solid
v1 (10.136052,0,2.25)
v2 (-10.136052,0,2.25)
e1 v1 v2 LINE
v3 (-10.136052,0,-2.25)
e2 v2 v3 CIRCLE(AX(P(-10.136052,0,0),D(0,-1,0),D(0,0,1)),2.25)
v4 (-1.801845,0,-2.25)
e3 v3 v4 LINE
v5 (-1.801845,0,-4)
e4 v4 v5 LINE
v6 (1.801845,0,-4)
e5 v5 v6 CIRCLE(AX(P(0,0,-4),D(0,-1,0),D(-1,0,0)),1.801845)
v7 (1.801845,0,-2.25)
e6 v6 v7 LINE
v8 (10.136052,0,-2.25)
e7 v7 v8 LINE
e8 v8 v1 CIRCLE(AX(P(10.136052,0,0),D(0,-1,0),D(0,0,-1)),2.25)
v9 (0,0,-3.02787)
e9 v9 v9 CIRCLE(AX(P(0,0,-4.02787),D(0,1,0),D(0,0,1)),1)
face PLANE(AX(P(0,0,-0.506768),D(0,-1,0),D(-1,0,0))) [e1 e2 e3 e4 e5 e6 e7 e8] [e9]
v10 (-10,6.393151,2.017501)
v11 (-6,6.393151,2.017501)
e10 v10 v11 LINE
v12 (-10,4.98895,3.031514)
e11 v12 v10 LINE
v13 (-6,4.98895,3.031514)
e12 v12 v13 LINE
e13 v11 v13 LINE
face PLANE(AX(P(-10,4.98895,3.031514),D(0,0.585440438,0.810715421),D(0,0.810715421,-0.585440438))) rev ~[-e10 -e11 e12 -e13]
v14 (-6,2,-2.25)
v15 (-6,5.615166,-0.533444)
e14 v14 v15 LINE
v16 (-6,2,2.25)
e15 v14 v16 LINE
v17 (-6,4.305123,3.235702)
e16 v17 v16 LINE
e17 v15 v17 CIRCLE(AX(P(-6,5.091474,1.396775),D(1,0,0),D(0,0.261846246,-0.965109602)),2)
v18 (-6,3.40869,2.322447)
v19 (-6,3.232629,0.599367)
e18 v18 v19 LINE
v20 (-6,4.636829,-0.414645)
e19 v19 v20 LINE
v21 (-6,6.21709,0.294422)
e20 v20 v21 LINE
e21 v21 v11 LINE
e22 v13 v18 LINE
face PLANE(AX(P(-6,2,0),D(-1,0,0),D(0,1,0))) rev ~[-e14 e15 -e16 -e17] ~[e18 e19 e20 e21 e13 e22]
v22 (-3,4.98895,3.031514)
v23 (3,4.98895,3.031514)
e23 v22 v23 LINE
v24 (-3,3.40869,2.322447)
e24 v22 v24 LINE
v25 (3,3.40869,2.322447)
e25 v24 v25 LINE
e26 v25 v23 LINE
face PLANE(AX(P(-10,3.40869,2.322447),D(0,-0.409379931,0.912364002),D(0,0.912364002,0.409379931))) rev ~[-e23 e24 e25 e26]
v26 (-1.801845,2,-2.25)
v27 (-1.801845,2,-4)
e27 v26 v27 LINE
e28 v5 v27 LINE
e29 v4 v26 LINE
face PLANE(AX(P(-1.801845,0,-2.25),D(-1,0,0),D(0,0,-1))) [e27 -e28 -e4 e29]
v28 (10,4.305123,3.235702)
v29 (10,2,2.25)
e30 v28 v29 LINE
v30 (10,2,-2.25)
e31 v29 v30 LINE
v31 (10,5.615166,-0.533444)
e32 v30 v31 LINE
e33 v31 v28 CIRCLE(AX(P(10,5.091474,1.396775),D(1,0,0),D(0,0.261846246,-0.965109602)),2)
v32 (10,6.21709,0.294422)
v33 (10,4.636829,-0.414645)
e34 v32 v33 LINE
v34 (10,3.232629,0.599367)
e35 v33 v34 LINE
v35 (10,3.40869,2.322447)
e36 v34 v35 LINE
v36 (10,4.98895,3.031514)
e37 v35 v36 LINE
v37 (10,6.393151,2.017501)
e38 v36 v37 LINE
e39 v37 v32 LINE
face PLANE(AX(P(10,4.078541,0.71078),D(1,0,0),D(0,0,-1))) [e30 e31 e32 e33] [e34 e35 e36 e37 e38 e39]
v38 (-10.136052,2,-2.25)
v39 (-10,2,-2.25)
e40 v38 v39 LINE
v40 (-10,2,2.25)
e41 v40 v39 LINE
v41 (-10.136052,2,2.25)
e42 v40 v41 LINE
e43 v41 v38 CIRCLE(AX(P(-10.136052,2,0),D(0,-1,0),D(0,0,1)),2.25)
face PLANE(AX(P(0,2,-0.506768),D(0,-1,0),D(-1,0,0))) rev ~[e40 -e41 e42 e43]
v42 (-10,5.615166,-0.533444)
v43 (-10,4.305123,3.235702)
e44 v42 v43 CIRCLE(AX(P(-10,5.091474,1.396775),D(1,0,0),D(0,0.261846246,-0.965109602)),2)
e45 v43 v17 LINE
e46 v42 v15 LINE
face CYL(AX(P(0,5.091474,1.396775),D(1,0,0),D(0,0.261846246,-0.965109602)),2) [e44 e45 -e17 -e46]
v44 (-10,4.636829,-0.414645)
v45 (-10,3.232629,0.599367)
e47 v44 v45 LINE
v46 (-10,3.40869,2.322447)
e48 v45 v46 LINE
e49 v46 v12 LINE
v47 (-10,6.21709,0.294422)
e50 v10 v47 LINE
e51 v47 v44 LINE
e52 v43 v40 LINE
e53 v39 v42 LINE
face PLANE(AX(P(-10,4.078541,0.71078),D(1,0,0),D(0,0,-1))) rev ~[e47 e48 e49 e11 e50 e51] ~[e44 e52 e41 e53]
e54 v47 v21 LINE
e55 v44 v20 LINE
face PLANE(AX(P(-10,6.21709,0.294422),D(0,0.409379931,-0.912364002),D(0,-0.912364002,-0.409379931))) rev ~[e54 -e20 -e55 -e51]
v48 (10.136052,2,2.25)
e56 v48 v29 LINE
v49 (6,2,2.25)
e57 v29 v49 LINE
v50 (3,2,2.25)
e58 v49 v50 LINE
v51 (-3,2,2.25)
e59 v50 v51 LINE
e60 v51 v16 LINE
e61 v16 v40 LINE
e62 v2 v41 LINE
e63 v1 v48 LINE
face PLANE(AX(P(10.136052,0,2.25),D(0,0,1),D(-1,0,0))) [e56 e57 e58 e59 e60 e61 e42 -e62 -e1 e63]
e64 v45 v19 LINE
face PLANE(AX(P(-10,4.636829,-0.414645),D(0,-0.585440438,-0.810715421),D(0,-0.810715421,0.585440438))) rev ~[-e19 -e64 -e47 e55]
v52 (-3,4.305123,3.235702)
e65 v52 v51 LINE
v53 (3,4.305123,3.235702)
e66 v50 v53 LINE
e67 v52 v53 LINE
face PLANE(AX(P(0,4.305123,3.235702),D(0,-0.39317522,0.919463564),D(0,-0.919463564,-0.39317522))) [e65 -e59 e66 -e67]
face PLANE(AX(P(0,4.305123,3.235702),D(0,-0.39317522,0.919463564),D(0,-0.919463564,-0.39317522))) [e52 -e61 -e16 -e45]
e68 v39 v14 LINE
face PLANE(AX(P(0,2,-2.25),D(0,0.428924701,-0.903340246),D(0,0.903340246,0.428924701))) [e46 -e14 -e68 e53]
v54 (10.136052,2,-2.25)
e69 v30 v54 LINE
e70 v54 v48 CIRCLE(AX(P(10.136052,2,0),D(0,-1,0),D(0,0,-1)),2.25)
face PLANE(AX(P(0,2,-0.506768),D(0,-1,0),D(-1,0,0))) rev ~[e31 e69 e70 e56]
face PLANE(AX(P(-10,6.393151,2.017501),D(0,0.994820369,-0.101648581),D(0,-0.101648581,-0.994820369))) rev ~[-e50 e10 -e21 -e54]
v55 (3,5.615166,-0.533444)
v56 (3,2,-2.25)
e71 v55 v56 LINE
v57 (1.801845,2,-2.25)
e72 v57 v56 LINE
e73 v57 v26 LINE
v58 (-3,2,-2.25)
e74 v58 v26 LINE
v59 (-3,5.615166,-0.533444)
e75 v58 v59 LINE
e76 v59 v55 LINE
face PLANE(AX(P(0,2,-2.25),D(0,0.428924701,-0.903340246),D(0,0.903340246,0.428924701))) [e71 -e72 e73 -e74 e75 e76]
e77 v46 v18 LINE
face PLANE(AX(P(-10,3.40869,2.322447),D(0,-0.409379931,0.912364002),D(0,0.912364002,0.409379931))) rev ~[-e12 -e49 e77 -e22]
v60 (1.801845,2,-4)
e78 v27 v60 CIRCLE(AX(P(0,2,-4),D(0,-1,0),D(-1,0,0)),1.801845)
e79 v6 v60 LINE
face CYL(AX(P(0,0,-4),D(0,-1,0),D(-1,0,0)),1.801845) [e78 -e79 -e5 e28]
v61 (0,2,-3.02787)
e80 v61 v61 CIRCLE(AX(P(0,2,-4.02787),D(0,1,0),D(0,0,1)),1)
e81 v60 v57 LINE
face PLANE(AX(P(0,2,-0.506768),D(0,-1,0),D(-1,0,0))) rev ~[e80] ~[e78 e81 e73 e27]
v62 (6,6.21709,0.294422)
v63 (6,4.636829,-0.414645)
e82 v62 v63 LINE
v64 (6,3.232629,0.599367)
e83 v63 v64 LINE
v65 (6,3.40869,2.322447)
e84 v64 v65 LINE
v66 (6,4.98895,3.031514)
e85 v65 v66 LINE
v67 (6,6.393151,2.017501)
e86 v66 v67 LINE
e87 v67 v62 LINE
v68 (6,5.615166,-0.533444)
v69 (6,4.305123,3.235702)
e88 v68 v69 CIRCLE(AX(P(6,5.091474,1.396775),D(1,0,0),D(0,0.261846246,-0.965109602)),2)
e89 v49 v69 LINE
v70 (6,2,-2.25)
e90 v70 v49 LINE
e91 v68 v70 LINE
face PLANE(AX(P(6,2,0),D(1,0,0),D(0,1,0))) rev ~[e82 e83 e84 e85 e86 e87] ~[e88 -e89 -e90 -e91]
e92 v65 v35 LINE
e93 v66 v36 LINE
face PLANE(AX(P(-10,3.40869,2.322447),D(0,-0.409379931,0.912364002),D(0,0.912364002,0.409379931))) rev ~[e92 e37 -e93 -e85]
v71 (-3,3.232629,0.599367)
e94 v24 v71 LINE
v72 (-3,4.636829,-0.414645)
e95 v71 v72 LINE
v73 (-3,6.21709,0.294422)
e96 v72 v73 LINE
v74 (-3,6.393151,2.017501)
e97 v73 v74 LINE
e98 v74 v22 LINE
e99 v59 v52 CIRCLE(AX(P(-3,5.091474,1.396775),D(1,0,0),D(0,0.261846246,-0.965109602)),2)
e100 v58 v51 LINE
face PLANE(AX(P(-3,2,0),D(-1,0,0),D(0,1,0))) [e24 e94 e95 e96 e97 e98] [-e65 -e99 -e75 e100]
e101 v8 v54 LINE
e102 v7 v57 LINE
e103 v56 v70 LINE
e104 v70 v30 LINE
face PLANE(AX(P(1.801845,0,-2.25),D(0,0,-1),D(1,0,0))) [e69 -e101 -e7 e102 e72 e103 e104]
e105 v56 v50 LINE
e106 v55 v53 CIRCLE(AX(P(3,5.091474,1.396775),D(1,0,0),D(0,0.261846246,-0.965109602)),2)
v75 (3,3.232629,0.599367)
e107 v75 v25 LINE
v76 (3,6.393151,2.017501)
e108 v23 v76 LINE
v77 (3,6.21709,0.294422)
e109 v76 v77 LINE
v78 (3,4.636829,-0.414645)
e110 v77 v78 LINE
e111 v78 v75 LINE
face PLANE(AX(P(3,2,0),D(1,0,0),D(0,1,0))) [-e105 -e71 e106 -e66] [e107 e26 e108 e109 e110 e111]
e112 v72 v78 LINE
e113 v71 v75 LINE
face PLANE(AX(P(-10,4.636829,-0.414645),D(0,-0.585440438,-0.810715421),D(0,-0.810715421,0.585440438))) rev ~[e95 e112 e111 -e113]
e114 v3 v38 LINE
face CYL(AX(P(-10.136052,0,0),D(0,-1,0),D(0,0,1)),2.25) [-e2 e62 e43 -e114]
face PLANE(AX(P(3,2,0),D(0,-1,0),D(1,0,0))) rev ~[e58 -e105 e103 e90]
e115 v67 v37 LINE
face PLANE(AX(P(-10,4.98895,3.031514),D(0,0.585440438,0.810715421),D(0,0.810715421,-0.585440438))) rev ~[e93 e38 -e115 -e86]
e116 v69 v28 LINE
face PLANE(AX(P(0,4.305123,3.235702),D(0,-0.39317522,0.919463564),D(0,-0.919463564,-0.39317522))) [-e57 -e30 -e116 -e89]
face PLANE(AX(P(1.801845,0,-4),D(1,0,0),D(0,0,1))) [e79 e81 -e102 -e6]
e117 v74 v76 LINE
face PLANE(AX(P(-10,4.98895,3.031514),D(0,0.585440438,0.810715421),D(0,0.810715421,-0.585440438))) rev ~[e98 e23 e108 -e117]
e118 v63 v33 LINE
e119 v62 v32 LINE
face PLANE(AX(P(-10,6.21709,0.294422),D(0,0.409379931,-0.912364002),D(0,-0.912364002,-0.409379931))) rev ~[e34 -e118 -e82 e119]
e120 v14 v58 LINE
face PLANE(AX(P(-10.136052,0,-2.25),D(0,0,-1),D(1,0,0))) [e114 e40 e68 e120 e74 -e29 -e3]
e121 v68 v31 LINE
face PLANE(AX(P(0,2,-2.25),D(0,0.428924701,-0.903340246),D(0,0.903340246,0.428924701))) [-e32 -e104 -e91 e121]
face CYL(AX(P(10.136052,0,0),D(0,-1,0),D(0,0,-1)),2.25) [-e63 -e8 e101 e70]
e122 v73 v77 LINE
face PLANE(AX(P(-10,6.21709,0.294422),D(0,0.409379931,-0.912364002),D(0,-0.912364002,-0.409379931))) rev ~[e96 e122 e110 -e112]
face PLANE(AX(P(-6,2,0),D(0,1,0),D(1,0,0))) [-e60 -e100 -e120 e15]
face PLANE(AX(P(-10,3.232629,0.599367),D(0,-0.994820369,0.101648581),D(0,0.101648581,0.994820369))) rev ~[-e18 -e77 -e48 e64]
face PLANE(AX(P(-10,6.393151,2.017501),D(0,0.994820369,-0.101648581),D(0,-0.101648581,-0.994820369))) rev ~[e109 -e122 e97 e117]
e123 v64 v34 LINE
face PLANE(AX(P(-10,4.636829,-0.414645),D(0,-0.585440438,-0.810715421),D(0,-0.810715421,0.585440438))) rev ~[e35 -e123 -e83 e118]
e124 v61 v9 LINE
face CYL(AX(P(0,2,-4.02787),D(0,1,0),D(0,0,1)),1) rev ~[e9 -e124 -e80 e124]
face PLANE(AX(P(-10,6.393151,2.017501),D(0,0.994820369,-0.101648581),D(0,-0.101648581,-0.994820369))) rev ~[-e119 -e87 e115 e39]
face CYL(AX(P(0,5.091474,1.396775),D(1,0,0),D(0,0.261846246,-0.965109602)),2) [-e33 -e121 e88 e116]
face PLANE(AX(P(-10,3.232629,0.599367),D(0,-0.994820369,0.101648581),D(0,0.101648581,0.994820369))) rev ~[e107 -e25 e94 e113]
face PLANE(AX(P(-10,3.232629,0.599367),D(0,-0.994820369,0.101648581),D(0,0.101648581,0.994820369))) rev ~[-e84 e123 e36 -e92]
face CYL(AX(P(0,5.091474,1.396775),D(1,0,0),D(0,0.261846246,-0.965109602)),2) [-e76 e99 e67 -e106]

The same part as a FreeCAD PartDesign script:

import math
import FreeCAD as App
import Part
import Sketcher

V = App.Vector


def add_polygon(sketch, points):
    """Adds a closed chain of lines whose ends are joined by coincident constraints."""
    first, n = sketch.GeometryCount, len(points)
    for a, b in zip(points, points[1:] + points[:1]):
        sketch.addGeometry(Part.LineSegment(App.Vector(*a, 0), App.Vector(*b, 0)), False)
    for i in range(n):
        sketch.addConstraint(Sketcher.Constraint("Coincident", first + i, 2, first + (i + 1) % n, 1))

doc = App.newDocument("Part")
body = doc.addObject("PartDesign::Body", "Body")

# Sketch on XZ plane
sketch1 = body.newObject("Sketcher::SketchObject", "Sketch")
sketch1.AttachmentSupport = (doc.getObject("XZ_Plane"), [""])
sketch1.MapMode = "FlatFace"
sketch1.addGeometry([
    Part.LineSegment(V(-1.8, -2.2, 0), V(-10.1, -2.2, 0)),  # 0
    Part.ArcOfCircle(Part.Circle(V(-10.1, 0, 0), V(0, 0, 1), 2.2), math.radians(90), math.radians(270)),  # 1
    Part.LineSegment(V(-10.1, 2.2, 0), V(10.1, 2.2, 0)),  # 2
    Part.ArcOfCircle(Part.Circle(V(10.1, 0, 0), V(0, 0, 1), 2.2), math.radians(-90), math.radians(90)),  # 3
    Part.LineSegment(V(10.1, -2.2, 0), V(1.8, -2.2, 0)),  # 4
    Part.LineSegment(V(1.8, -2.2, 0), V(1.8, -4, 0)),  # 5
    Part.ArcOfCircle(Part.Circle(V(0, -4, 0), V(0, 0, 1), 1.8), math.radians(180), math.radians(360)),  # 6
    Part.LineSegment(V(-1.8, -4, 0), V(-1.8, -2.2, 0)),  # 7
], False)
sketch1.addConstraint([
    Sketcher.Constraint("Tangent", 0, 2, 1, 2),
    Sketcher.Constraint("Tangent", 1, 1, 2, 1),
    Sketcher.Constraint("Tangent", 2, 2, 3, 2),
    Sketcher.Constraint("Tangent", 3, 1, 4, 1),
    Sketcher.Constraint("Coincident", 4, 2, 5, 1),
    Sketcher.Constraint("Tangent", 5, 2, 6, 2),
    Sketcher.Constraint("Tangent", 6, 1, 7, 1),
    Sketcher.Constraint("Coincident", 7, 2, 0, 1),
    Sketcher.Constraint("Horizontal", 0),
    Sketcher.Constraint("Horizontal", 2),
    Sketcher.Constraint("Horizontal", 4),
    Sketcher.Constraint("Vertical", 5),
    Sketcher.Constraint("Vertical", 7),
    Sketcher.Constraint("Equal", 1, 3),
    Sketcher.Constraint("Symmetric", 1, 3, 3, 3, -1, 1),
    Sketcher.Constraint("PointOnObject", 6, 3, -2),
    Sketcher.Constraint("Radius", 1, 2.25),
    Sketcher.Constraint("DistanceY", 6, 3, -1, 1, 4.0),
    Sketcher.Constraint("Radius", 6, 1.801845),
    Sketcher.Constraint("DistanceX", 0, 2, 0, 1, 8.334207),
])
pad1 = body.newObject("PartDesign::Pad", "Pad")
pad1.Profile = sketch1
pad1.Length = 2
pad1.Reversed = True

# Sketch on XZ plane
sketch2 = body.newObject("Sketcher::SketchObject", "Sketch001")
sketch2.AttachmentSupport = (doc.getObject("XZ_Plane"), [""])
sketch2.MapMode = "FlatFace"
sketch2.AttachmentOffset = App.Placement(V(0, 0, -2), App.Rotation())
sketch2.addGeometry(Part.Circle(V(0, -4, 0), V(0, 0, 1), 1), False)
sketch2.addConstraint([
    Sketcher.Constraint("PointOnObject", 0, 3, -2),
    Sketcher.Constraint("Diameter", 0, 2.0),
    Sketcher.Constraint("DistanceY", 0, 3, -1, 1, 4.02787),
])
pocket1 = body.newObject("PartDesign::Pocket", "Pocket")
pocket1.Profile = sketch2
pocket1.Length = 2
pocket1.Reversed = True

# Sketch on YZ plane
sketch3 = body.newObject("Sketcher::SketchObject", "Sketch002")
sketch3.AttachmentSupport = (doc.getObject("YZ_Plane"), [""])
sketch3.MapMode = "FlatFace"
sketch3.addGeometry([
    Part.LineSegment(V(2, -2.2, 0), V(5.6, -0.5, 0)),
    Part.ArcOfCircle(Part.Circle(V(5.1, 1.4, 0), V(0, 0, 1), 2), math.radians(-75), math.radians(113)),
    Part.LineSegment(V(4.3, 3.2, 0), V(2, 2.2, 0)),
    Part.LineSegment(V(2, 2.2, 0), V(2, -2.2, 0)),
], False)
sketch3.addConstraint([
    Sketcher.Constraint("Coincident", 0, 2, 1, 1),
    Sketcher.Constraint("Tangent", 1, 2, 2, 1),
    Sketcher.Constraint("Coincident", 2, 2, 3, 1),
    Sketcher.Constraint("Coincident", 3, 2, 0, 1),
    Sketcher.Constraint("Vertical", 3),
    Sketcher.Constraint("Radius", 1, 2.0),
    Sketcher.Constraint("DistanceY", 3, 2, 3, 1, 4.5),
    Sketcher.Constraint("DistanceX", -1, 1, 2, 2, 2.0),
    Sketcher.Constraint("DistanceY", -1, 1, 2, 2, 2.25),
    Sketcher.Constraint("Distance", 0, 4.001999),
    Sketcher.Constraint("Distance", 2, 2.507031),
    Sketcher.Constraint("DistanceY", 0, 2, 1, 3, 1.930219),
])
pad2 = body.newObject("PartDesign::Pad", "Pad001")
pad2.Profile = sketch3
pad2.Length = 20
pad2.Midplane = True

# Sketch on YZ plane
sketch4 = body.newObject("Sketcher::SketchObject", "Sketch003")
sketch4.AttachmentSupport = (doc.getObject("YZ_Plane"), [""])
sketch4.MapMode = "FlatFace"
sketch4.AttachmentOffset = App.Placement(V(0, 0, -10), App.Rotation())
add_polygon(sketch4, [(3.2, 0.6), (3.4, 2.3), (5, 3), (6.4, 2), (6.2, 0.3), (4.6, -0.4)])  # lines 0-5
sketch4.addConstraint([
    Sketcher.Constraint("Parallel", 0, 3),
    Sketcher.Constraint("Parallel", 1, 4),
    Sketcher.Constraint("Parallel", 2, 5),
    Sketcher.Constraint("Equal", 0, 1),
    Sketcher.Constraint("Equal", 1, 2),
    Sketcher.Constraint("Equal", 2, 3),
    Sketcher.Constraint("DistanceY", -1, 1, 2, 2, 2.017501),
    Sketcher.Constraint("DistanceX", 1, 2, 2, 2, 1.4042),
    Sketcher.Constraint("DistanceX", 0, 2, 3, 2, 2.808401),
    Sketcher.Constraint("Distance", 0, 1.732051),
    Sketcher.Constraint("DistanceX", -1, 1, 0, 2, 3.40869),
    Sketcher.Constraint("DistanceX", -1, 1, 1, 2, 4.98895),
])
pocket2 = body.newObject("PartDesign::Pocket", "Pocket001")
pocket2.Profile = sketch4
pocket2.Length = 20
pocket2.Reversed = True

# Sketch on XY plane
sketch5 = body.newObject("Sketcher::SketchObject", "Sketch004")
sketch5.AttachmentSupport = (doc.getObject("XY_Plane"), [""])
sketch5.MapMode = "FlatFace"
add_polygon(sketch5, [(-6, 10.5), (-6, 2), (-3, 2), (-3, 10.5)])  # lines 0-3
add_polygon(sketch5, [(3, 10.5), (3, 2), (6, 2), (6, 10.5)])  # lines 4-7
sketch5.addConstraint([
    Sketcher.Constraint("Vertical", 0),
    Sketcher.Constraint("Horizontal", 1),
    Sketcher.Constraint("Vertical", 2),
    Sketcher.Constraint("Horizontal", 3),
    Sketcher.Constraint("Vertical", 4),
    Sketcher.Constraint("Horizontal", 5),
    Sketcher.Constraint("Vertical", 6),
    Sketcher.Constraint("Horizontal", 7),
    Sketcher.Constraint("Symmetric", 1, 2, 4, 2, -2),
    Sketcher.Constraint("Symmetric", 3, 2, 6, 2, -2),
    Sketcher.Constraint("DistanceX", 1, 1, 1, 2, 3.0),
    Sketcher.Constraint("DistanceX", 0, 2, -1, 1, 6.0),
    Sketcher.Constraint("DistanceY", -1, 1, 0, 2, 2.0),
    Sketcher.Constraint("DistanceY", 0, 2, 0, 1, 8.464175),
])
pocket3 = body.newObject("PartDesign::Pocket", "Pocket002")
pocket3.Profile = sketch5
pocket3.Length = 20
pocket3.Midplane = True

doc.recompute()
